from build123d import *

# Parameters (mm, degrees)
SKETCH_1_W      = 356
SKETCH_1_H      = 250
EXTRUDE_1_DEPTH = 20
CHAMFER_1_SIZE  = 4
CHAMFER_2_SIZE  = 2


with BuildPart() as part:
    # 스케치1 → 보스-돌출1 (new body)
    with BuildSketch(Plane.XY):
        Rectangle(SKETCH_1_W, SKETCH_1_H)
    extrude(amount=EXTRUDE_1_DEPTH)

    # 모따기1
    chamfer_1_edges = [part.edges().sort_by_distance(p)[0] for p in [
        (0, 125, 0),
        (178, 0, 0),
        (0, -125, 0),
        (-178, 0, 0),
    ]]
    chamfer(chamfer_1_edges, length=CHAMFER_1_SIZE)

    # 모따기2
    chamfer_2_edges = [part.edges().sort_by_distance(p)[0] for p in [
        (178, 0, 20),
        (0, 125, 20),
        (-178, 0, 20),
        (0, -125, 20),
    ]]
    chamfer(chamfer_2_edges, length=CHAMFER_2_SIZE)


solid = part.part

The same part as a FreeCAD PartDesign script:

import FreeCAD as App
import Part
import Sketcher

V = App.Vector
Q = App.Units.Quantity


def edges_at(feature, points):
    """Names of the edges that pass closest to the given points."""
    edges = feature.Shape.Edges
    near = lambda p: min(range(len(edges)), key=lambda i: edges[i].distToShape(Part.Vertex(*p))[0])
    return sorted({f"Edge{near(p) + 1}" for p in points})

doc = App.newDocument("Part")
params = doc.addObject("Spreadsheet::Sheet", "Params")
for row, (alias, value) in enumerate([
    ("sketch1_width", "356 mm"),
    ("sketch1_height", "250 mm"),
    ("pad1_length", "20 mm"),
    ("chamfer_size", "4 mm"),
    ("chamfer2_size", "2 mm"),
], start=1):
    params.set(f"A{row}", alias)
    params.set(f"B{row}", "=" + value)
    params.setAlias(f"B{row}", alias)

body = doc.addObject("PartDesign::Body", "Body")

# Sketch on XY plane
sketch1 = body.newObject("Sketcher::SketchObject", "Sketch")
sketch1.AttachmentSupport = (doc.getObject("XY_Plane"), [""])
sketch1.MapMode = "FlatFace"
sketch1.addGeometry([
    Part.LineSegment(V(-178, 125, 0), V(-178, -125, 0)),
    Part.LineSegment(V(-178, -125, 0), V(178, -125, 0)),
    Part.LineSegment(V(178, -125, 0), V(178, 125, 0)),
    Part.LineSegment(V(178, 125, 0), V(-178, 125, 0)),
], False)
sketch1.addConstraint([
    Sketcher.Constraint("Coincident", 0, 2, 1, 1),
    Sketcher.Constraint("Coincident", 1, 2, 2, 1),
    Sketcher.Constraint("Coincident", 2, 2, 3, 1),
    Sketcher.Constraint("Coincident", 3, 2, 0, 1),
    Sketcher.Constraint("Vertical", 0),
    Sketcher.Constraint("Horizontal", 1),
    Sketcher.Constraint("Vertical", 2),
    Sketcher.Constraint("Horizontal", 3),
    Sketcher.Constraint("Symmetric", 0, 2, 2, 2, -1, 1),
    Sketcher.Constraint("DistanceX", 1, 1, 1, 2, Q("356 mm")),
    Sketcher.Constraint("DistanceY", 0, 2, 0, 1, Q("250 mm")),
])
sketch1.setExpression("Constraints[9]", "Params.sketch1_width")
sketch1.setExpression("Constraints[10]", "Params.sketch1_height")
pad1 = body.newObject("PartDesign::Pad", "Pad")
pad1.Profile = sketch1
pad1.setExpression("Length", "Params.pad1_length")
doc.recompute()

chamfer = body.newObject("PartDesign::Chamfer", "Chamfer")
chamfer.Base = (pad1, edges_at(pad1, [
    (0, 125, 0),
    (178, 0, 0),
    (0, -125, 0),
    (-178, 0, 0),
]))
chamfer.setExpression("Size", "Params.chamfer_size")
doc.recompute()

chamfer2 = body.newObject("PartDesign::Chamfer", "Chamfer001")
chamfer2.Base = (chamfer, edges_at(chamfer, [
    (178, 0, 20),
    (0, 125, 20),
    (-178, 0, 20),
    (0, -125, 20),
]))
chamfer2.setExpression("Size", "Params.chamfer2_size")

doc.recompute()
